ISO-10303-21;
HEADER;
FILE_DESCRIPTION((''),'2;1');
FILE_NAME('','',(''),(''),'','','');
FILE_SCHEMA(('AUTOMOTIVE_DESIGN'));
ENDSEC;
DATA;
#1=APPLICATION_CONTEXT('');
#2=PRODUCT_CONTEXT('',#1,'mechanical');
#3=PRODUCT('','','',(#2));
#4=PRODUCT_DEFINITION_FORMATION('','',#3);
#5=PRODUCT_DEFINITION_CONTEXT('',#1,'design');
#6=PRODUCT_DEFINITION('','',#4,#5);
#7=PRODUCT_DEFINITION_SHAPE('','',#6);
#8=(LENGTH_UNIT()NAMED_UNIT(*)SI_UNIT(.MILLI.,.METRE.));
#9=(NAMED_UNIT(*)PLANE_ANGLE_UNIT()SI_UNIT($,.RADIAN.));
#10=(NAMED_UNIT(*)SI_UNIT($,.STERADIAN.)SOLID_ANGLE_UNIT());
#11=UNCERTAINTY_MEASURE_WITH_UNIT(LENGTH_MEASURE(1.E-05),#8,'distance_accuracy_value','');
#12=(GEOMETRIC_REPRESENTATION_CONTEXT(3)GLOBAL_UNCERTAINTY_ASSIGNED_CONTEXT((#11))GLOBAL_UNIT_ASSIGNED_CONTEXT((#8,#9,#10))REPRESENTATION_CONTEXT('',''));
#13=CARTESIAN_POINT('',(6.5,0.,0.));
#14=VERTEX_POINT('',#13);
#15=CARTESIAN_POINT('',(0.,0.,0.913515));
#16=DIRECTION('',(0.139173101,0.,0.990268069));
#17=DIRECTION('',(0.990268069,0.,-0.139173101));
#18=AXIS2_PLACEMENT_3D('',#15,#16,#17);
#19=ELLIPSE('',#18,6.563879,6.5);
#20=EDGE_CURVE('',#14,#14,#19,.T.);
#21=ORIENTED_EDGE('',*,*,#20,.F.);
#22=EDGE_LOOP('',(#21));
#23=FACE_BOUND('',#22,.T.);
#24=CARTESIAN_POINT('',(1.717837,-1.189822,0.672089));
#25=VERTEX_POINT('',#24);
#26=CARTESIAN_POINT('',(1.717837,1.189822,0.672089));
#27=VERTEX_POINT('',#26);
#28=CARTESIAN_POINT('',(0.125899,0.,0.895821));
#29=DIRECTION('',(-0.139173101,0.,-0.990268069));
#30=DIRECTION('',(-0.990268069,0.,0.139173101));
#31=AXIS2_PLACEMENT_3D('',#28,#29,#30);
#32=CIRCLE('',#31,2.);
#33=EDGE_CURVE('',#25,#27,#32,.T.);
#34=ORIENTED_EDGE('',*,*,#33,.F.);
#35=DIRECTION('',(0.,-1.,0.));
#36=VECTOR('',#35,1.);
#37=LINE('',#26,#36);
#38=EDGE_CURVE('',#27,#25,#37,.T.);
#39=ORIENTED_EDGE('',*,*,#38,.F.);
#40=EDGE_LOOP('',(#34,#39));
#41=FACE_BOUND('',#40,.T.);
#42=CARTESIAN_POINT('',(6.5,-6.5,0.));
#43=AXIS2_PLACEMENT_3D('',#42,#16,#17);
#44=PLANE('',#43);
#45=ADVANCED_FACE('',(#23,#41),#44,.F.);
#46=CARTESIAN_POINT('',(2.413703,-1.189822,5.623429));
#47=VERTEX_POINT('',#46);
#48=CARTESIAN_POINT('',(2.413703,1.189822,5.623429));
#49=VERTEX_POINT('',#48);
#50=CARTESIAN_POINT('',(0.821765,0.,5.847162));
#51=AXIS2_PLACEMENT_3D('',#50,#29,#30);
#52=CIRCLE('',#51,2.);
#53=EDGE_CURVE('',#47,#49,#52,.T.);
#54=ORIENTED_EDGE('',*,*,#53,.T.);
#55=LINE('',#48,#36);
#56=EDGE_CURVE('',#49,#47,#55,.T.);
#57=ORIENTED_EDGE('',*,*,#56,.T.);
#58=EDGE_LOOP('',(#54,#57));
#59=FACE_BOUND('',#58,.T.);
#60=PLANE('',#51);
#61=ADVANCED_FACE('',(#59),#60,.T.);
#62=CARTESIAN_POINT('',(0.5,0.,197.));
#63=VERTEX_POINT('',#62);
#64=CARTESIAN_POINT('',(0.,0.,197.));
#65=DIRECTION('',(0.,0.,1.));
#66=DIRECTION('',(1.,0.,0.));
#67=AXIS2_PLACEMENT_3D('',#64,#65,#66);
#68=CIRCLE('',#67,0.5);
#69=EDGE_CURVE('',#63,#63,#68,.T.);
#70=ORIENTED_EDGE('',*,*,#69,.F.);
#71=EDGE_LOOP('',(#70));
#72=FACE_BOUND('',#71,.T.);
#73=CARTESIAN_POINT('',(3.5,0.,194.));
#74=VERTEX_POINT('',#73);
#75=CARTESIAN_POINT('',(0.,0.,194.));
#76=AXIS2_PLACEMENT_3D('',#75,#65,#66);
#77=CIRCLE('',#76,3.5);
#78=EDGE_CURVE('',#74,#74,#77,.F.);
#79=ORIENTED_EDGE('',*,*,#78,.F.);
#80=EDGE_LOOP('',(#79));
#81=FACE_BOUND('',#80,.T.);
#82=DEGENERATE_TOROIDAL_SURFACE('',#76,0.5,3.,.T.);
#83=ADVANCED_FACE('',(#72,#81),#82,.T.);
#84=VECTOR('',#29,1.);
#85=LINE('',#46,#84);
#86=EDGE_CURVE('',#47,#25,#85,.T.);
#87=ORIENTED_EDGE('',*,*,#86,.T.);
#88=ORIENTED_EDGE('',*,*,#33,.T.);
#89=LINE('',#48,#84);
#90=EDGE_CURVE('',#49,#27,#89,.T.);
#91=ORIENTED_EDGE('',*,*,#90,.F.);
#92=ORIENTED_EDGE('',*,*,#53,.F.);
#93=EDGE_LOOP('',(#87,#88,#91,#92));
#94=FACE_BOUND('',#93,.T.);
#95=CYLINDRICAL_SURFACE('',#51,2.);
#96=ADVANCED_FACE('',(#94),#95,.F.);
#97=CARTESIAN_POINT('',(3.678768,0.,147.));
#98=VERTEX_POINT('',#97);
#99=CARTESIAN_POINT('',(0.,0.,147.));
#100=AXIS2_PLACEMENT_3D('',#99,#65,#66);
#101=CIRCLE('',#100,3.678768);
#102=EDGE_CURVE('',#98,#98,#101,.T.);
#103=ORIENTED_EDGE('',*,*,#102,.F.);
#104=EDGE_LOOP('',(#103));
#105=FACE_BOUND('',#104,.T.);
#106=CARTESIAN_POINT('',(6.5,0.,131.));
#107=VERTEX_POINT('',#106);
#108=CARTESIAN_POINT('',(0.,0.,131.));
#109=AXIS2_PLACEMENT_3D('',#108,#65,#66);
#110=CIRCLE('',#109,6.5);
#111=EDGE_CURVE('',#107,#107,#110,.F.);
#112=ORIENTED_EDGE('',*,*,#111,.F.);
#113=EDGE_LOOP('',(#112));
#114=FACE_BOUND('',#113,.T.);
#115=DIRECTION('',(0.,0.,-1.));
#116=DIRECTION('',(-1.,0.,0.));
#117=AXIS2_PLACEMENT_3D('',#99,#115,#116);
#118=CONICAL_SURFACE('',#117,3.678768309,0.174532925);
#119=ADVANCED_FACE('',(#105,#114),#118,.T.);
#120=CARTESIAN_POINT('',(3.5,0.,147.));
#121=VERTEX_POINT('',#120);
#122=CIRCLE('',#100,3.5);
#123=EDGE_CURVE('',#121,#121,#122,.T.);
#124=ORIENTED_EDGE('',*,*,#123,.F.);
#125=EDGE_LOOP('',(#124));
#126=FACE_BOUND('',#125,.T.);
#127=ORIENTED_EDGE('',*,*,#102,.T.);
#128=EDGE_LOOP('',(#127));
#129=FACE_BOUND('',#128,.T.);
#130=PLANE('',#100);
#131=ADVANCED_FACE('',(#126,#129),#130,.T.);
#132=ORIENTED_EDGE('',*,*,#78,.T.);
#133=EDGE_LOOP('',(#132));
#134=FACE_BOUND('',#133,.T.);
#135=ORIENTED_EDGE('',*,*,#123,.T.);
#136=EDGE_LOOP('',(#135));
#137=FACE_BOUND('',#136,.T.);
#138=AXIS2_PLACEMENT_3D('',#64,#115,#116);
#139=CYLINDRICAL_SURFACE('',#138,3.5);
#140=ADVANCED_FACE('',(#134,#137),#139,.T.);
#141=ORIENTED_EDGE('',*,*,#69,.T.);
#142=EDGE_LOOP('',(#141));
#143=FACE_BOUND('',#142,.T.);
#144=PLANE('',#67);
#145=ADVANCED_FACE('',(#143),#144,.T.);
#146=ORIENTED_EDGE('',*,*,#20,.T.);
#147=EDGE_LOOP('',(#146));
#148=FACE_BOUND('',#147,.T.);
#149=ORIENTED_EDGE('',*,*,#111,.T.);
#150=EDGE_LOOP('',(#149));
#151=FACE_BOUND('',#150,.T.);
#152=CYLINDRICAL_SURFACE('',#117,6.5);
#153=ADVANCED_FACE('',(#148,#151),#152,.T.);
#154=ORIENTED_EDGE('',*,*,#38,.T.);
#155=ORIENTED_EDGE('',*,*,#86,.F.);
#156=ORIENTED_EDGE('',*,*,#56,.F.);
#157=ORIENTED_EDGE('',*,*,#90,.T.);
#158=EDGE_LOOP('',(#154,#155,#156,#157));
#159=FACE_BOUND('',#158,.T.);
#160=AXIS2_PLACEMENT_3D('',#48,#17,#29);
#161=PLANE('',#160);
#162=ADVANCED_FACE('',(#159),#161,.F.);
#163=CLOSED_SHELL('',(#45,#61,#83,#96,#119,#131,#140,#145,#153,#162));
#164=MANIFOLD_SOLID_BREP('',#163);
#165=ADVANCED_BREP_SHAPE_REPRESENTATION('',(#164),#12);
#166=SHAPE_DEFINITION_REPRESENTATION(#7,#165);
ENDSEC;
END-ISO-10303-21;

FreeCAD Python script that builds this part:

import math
import FreeCAD as App
import Part
import Sketcher

V = App.Vector
Q = App.Units.Quantity


def edges_at(feature, points):
    """Names of the edges that pass closest to the given points."""
    edges = feature.Shape.Edges
    near = lambda p: min(range(len(edges)), key=lambda i: edges[i].distToShape(Part.Vertex(*p))[0])
    return sorted({f"Edge{near(p) + 1}" for p in points})


def add_polygon(sketch, points):
    """Adds a closed chain of lines whose ends are joined by coincident constraints."""
    first, n = sketch.GeometryCount, len(points)
    for a, b in zip(points, points[1:] + points[:1]):
        sketch.addGeometry(Part.LineSegment(App.Vector(*a, 0), App.Vector(*b, 0)), False)
    for i in range(n):
        sketch.addConstraint(Sketcher.Constraint("Coincident", first + i, 2, first + (i + 1) % n, 1))

doc = App.newDocument("Part")
params = doc.addObject("Spreadsheet::Sheet", "Params")
for row, (alias, value) in enumerate([
    ("sketch1_diameter", "13 mm"),
    ("pad1_length", "147 mm"),
    ("sketch2_diameter", "7 mm"),
    ("pad2_length", "50 mm"),
    ("fillet_radius", "3 mm"),
    ("chamfer_size", "16 mm"),
    ("chamfer_size2", "2.821232 mm"),
    ("sketch3_width", "13 mm"),
    ("sketch4_radius", "2 mm"),
    ("pocket2_length", "5 mm"),
], start=1):
    params.set(f"A{row}", alias)
    params.set(f"B{row}", "=" + value)
    params.setAlias(f"B{row}", alias)

body = doc.addObject("PartDesign::Body", "Body")

sketch1 = body.newObject("Sketcher::SketchObject", "Sketch")
sketch1.AttachmentSupport = (doc.getObject("XY_Plane"), [""])
sketch1.MapMode = "FlatFace"
sketch1.addGeometry(Part.Circle(V(0, 0, 0), V(0, 0, 1), 6), False)
sketch1.addConstraint([
    Sketcher.Constraint("Coincident", 0, 3, -1, 1),
    Sketcher.Constraint("Diameter", 0, Q("13 mm")),
])
sketch1.setExpression("Constraints[1]", "Params.sketch1_diameter")
pad1 = body.newObject("PartDesign::Pad", "Pad")
pad1.Profile = sketch1
pad1.setExpression("Length", "Params.pad1_length")

sketch2 = body.newObject("Sketcher::SketchObject", "Sketch001")
sketch2.AttachmentSupport = (doc.getObject("XY_Plane"), [""])
sketch2.MapMode = "FlatFace"
sketch2.AttachmentOffset = App.Placement(V(0, 0, 147), App.Rotation())
sketch2.addGeometry(Part.Circle(V(0, 0, 0), V(0, 0, 1), 3.5), False)
sketch2.addConstraint([
    Sketcher.Constraint("Coincident", 0, 3, -1, 1),
    Sketcher.Constraint("Diameter", 0, Q("7 mm")),
])
sketch2.setExpression("Constraints[1]", "Params.sketch2_diameter")
pad2 = body.newObject("PartDesign::Pad", "Pad001")
pad2.Profile = sketch2
pad2.setExpression("Length", "Params.pad2_length")
doc.recompute()

fillet = body.newObject("PartDesign::Fillet", "Fillet")
fillet.Base = (pad2, edges_at(pad2, [(-3.5, 0, 197)]))
fillet.setExpression("Radius", "Params.fillet_radius")
doc.recompute()

chamfer = body.newObject("PartDesign::Chamfer", "Chamfer")
chamfer.Base = (fillet, edges_at(fillet, [(-6.5, 0, 147)]))
chamfer.ChamferType = "Two distances"
chamfer.setExpression("Size", "Params.chamfer_size")
chamfer.setExpression("Size2", "Params.chamfer_size2")
chamfer.FlipDirection = True

sketch3 = body.newObject("Sketcher::SketchObject", "Sketch002")
sketch3.AttachmentSupport = (doc.getObject("XZ_Plane"), [""])
sketch3.MapMode = "FlatFace"
add_polygon(sketch3, [(-6.5, 1.8), (6.5, 0), (-6.5, 0)])
sketch3.addConstraint([
    Sketcher.Constraint("Horizontal", 1),
    Sketcher.Constraint("Vertical", 2),
    Sketcher.Constraint("Symmetric", 0, 2, 1, 2, -1, 1),
    Sketcher.Constraint("DistanceX", 1, 2, 1, 1, Q("13 mm")),
    Sketcher.Constraint("Angle", 0, Q("-8 deg")),
])
sketch3.setExpression("Constraints[6]", "Params.sketch3_width")
pocket1 = body.newObject("PartDesign::Pocket", "Pocket")
pocket1.Profile = sketch3
pocket1.Type = "ThroughAll"
pocket1.Midplane = True

sketch4 = body.newObject("Sketcher::SketchObject", "Sketch003")
sketch4.Placement = App.Placement(V(0.125899, 0, 0.895821), App.Rotation(V(-0.990268069, 0, 0.139173101), V(0, 1.000000001, 0), V(-0.139173101, 0, -0.990268069), "ZXY"))
sketch4.addGeometry([
    Part.LineSegment(V(-1.6, 1.2, 0), V(-1.6, -1.2, 0)),
    Part.ArcOfCircle(Part.Circle(V(0, 0, 0), V(0, 0, 1), 2), math.radians(-143), math.radians(143)),
], False)
sketch4.addConstraint([
    Sketcher.Constraint("Coincident", 0, 1, 1, 2),
    Sketcher.Constraint("Coincident", 1, 1, 0, 2),
    Sketcher.Constraint("Vertical", 0),
    Sketcher.Constraint("Coincident", 1, 3, -1, 1),
    Sketcher.Constraint("Radius", 1, Q("2 mm")),
    Sketcher.Constraint("DistanceY", 0, 2, 0, 1, Q("2.379645 mm")),
])
sketch4.setExpression("Constraints[4]", "Params.sketch4_radius")
pocket2 = body.newObject("PartDesign::Pocket", "Pocket001")
pocket2.Profile = sketch4
pocket2.setExpression("Length", "Params.pocket2_length")

doc.recompute()
